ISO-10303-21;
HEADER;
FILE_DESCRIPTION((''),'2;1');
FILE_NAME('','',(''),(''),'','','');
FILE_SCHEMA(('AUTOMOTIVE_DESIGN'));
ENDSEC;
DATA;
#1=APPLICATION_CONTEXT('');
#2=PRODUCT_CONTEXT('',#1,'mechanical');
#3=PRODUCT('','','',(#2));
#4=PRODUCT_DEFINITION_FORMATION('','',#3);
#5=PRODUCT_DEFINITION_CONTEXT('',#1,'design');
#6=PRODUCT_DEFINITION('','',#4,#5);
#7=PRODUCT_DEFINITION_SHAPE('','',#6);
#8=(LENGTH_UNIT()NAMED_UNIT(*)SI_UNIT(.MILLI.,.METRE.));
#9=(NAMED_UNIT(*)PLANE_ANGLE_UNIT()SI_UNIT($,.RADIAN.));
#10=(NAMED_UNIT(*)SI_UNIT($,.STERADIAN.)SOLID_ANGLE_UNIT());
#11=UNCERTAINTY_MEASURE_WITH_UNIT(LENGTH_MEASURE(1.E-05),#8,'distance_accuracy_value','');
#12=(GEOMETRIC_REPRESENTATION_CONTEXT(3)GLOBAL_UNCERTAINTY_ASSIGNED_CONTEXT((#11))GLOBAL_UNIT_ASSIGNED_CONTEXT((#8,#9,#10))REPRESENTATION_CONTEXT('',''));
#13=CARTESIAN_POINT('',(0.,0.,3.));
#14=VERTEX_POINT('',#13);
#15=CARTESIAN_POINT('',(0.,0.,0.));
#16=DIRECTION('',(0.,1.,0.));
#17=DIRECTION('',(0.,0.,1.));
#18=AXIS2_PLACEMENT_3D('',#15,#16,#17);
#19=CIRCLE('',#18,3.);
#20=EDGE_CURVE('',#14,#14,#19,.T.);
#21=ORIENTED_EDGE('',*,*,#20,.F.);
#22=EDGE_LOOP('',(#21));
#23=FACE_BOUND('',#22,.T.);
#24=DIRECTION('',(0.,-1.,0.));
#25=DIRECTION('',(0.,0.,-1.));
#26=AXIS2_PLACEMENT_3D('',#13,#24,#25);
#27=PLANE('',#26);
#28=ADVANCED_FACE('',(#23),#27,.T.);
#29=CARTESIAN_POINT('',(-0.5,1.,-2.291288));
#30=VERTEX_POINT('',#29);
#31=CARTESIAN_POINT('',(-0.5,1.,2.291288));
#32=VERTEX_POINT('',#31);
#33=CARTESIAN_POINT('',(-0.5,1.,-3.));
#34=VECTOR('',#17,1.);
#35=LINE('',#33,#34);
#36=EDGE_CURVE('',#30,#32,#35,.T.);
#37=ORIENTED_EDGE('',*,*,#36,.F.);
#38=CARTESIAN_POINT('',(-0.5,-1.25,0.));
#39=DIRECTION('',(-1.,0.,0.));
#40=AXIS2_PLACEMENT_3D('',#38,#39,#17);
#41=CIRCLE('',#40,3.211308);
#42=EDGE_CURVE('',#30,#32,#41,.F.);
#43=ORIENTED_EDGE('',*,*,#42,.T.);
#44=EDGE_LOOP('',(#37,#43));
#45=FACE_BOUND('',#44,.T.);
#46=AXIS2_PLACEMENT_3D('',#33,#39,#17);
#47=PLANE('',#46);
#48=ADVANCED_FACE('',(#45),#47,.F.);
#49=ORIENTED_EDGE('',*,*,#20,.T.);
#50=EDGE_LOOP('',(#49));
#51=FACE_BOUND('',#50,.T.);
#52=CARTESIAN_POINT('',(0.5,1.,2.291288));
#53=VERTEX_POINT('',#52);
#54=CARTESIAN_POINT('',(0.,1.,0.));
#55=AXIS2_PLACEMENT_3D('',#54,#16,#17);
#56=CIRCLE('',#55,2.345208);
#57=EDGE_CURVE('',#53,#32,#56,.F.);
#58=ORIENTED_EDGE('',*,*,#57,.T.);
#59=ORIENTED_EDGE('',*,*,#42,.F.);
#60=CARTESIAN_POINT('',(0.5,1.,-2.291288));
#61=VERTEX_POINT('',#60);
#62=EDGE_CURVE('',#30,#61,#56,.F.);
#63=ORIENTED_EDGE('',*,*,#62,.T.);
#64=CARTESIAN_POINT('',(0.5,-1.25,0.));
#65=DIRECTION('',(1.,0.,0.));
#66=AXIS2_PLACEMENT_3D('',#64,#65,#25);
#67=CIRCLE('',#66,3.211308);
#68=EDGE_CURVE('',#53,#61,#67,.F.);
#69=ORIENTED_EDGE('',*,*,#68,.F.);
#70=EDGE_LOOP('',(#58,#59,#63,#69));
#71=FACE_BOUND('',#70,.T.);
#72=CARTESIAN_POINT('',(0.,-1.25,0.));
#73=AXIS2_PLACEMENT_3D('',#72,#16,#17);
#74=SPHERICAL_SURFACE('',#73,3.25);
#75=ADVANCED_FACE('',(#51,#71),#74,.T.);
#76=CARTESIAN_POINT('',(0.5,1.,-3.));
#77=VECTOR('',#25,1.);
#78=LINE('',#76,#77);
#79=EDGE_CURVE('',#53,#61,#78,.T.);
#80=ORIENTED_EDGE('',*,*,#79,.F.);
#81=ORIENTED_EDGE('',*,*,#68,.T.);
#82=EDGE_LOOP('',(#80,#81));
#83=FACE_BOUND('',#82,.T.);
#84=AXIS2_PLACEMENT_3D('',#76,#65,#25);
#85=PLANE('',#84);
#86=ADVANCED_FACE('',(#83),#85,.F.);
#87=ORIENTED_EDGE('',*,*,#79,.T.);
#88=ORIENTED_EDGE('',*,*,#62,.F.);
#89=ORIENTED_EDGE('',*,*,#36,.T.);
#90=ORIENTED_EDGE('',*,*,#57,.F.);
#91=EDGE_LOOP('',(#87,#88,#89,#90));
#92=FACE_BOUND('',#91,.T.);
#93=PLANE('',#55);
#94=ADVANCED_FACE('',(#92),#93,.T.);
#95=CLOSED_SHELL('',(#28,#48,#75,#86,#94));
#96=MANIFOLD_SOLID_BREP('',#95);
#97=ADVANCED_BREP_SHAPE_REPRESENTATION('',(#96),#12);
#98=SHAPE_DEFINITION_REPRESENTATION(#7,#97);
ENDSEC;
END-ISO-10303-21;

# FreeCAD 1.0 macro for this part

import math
import FreeCAD as App
import Part
import Sketcher


def add_polygon(sketch, points):
    """Adds a closed chain of lines whose ends are joined by coincident constraints."""
    first, n = sketch.GeometryCount, len(points)
    for a, b in zip(points, points[1:] + points[:1]):
        sketch.addGeometry(Part.LineSegment(App.Vector(*a, 0), App.Vector(*b, 0)), False)
    for i in range(n):
        sketch.addConstraint(Sketcher.Constraint("Coincident", first + i, 2, first + (i + 1) % n, 1))

doc = App.newDocument("Part")
body = doc.addObject("PartDesign::Body", "Body")

# Sketch on YZ plane
sketch1 = body.newObject("Sketcher::SketchObject", "Sketch")
sketch1.AttachmentSupport = (doc.getObject("YZ_Plane"), [""])
sketch1.MapMode = "FlatFace"
sketch1.addGeometry(Part.LineSegment(App.Vector(0, 3, 0), App.Vector(0, 0, 0)), False)
sketch1.addGeometry(Part.LineSegment(App.Vector(0, 0, 0), App.Vector(2, 0, 0)), False)
sketch1.addGeometry(Part.ArcOfCircle(Part.Circle(App.Vector(-1.2, 0, 0), App.Vector(0, 0, 1), 3.2), math.radians(0), math.radians(67)), False)
sketch1.addConstraint(Sketcher.Constraint("Coincident", 0, 2, 1, 1))
sketch1.addConstraint(Sketcher.Constraint("Coincident", 1, 2, 2, 1))
sketch1.addConstraint(Sketcher.Constraint("Coincident", 2, 2, 0, 1))
sketch1.addConstraint(Sketcher.Constraint("Vertical", 0))
sketch1.addConstraint(Sketcher.Constraint("Horizontal", 1))
sketch1.addConstraint(Sketcher.Constraint("Coincident", 0, 2, -1, 1))
sketch1.addConstraint(Sketcher.Constraint("PointOnObject", 2, 3, -1))
sketch1.addConstraint(Sketcher.Constraint("DistanceX", 1, 1, 1, 2, 2.0))
sketch1.addConstraint(Sketcher.Constraint("DistanceY", 0, 2, 0, 1, 3.0))
revolution = body.newObject("PartDesign::Revolution", "Revolution")
revolution.Profile = sketch1
revolution.ReferenceAxis = (sketch1, ["H_Axis"])
revolution.Angle = 360

# Sketch on XZ plane
sketch2 = body.newObject("Sketcher::SketchObject", "Sketch001")
sketch2.AttachmentSupport = (doc.getObject("XZ_Plane"), [""])
sketch2.MapMode = "FlatFace"
sketch2.AttachmentOffset = App.Placement(App.Vector(0, 0, -2), App.Rotation())
add_polygon(sketch2, [(-0.5, -3), (-0.5, 3), (0.5, 3), (0.5, -3)])  # lines 0-3
sketch2.addConstraint(Sketcher.Constraint("Vertical", 0))
sketch2.addConstraint(Sketcher.Constraint("Horizontal", 1))
sketch2.addConstraint(Sketcher.Constraint("Vertical", 2))
sketch2.addConstraint(Sketcher.Constraint("Horizontal", 3))
sketch2.addConstraint(Sketcher.Constraint("Symmetric", 0, 2, 2, 2, -1, 1))
sketch2.addConstraint(Sketcher.Constraint("DistanceX", 1, 1, 1, 2, 1.0))
sketch2.addConstraint(Sketcher.Constraint("DistanceY", 0, 1, 0, 2, 6.0))
pocket1 = body.newObject("PartDesign::Pocket", "Pocket")
pocket1.Profile = sketch2
pocket1.Length = 1
pocket1.Reversed = True

doc.recompute()
